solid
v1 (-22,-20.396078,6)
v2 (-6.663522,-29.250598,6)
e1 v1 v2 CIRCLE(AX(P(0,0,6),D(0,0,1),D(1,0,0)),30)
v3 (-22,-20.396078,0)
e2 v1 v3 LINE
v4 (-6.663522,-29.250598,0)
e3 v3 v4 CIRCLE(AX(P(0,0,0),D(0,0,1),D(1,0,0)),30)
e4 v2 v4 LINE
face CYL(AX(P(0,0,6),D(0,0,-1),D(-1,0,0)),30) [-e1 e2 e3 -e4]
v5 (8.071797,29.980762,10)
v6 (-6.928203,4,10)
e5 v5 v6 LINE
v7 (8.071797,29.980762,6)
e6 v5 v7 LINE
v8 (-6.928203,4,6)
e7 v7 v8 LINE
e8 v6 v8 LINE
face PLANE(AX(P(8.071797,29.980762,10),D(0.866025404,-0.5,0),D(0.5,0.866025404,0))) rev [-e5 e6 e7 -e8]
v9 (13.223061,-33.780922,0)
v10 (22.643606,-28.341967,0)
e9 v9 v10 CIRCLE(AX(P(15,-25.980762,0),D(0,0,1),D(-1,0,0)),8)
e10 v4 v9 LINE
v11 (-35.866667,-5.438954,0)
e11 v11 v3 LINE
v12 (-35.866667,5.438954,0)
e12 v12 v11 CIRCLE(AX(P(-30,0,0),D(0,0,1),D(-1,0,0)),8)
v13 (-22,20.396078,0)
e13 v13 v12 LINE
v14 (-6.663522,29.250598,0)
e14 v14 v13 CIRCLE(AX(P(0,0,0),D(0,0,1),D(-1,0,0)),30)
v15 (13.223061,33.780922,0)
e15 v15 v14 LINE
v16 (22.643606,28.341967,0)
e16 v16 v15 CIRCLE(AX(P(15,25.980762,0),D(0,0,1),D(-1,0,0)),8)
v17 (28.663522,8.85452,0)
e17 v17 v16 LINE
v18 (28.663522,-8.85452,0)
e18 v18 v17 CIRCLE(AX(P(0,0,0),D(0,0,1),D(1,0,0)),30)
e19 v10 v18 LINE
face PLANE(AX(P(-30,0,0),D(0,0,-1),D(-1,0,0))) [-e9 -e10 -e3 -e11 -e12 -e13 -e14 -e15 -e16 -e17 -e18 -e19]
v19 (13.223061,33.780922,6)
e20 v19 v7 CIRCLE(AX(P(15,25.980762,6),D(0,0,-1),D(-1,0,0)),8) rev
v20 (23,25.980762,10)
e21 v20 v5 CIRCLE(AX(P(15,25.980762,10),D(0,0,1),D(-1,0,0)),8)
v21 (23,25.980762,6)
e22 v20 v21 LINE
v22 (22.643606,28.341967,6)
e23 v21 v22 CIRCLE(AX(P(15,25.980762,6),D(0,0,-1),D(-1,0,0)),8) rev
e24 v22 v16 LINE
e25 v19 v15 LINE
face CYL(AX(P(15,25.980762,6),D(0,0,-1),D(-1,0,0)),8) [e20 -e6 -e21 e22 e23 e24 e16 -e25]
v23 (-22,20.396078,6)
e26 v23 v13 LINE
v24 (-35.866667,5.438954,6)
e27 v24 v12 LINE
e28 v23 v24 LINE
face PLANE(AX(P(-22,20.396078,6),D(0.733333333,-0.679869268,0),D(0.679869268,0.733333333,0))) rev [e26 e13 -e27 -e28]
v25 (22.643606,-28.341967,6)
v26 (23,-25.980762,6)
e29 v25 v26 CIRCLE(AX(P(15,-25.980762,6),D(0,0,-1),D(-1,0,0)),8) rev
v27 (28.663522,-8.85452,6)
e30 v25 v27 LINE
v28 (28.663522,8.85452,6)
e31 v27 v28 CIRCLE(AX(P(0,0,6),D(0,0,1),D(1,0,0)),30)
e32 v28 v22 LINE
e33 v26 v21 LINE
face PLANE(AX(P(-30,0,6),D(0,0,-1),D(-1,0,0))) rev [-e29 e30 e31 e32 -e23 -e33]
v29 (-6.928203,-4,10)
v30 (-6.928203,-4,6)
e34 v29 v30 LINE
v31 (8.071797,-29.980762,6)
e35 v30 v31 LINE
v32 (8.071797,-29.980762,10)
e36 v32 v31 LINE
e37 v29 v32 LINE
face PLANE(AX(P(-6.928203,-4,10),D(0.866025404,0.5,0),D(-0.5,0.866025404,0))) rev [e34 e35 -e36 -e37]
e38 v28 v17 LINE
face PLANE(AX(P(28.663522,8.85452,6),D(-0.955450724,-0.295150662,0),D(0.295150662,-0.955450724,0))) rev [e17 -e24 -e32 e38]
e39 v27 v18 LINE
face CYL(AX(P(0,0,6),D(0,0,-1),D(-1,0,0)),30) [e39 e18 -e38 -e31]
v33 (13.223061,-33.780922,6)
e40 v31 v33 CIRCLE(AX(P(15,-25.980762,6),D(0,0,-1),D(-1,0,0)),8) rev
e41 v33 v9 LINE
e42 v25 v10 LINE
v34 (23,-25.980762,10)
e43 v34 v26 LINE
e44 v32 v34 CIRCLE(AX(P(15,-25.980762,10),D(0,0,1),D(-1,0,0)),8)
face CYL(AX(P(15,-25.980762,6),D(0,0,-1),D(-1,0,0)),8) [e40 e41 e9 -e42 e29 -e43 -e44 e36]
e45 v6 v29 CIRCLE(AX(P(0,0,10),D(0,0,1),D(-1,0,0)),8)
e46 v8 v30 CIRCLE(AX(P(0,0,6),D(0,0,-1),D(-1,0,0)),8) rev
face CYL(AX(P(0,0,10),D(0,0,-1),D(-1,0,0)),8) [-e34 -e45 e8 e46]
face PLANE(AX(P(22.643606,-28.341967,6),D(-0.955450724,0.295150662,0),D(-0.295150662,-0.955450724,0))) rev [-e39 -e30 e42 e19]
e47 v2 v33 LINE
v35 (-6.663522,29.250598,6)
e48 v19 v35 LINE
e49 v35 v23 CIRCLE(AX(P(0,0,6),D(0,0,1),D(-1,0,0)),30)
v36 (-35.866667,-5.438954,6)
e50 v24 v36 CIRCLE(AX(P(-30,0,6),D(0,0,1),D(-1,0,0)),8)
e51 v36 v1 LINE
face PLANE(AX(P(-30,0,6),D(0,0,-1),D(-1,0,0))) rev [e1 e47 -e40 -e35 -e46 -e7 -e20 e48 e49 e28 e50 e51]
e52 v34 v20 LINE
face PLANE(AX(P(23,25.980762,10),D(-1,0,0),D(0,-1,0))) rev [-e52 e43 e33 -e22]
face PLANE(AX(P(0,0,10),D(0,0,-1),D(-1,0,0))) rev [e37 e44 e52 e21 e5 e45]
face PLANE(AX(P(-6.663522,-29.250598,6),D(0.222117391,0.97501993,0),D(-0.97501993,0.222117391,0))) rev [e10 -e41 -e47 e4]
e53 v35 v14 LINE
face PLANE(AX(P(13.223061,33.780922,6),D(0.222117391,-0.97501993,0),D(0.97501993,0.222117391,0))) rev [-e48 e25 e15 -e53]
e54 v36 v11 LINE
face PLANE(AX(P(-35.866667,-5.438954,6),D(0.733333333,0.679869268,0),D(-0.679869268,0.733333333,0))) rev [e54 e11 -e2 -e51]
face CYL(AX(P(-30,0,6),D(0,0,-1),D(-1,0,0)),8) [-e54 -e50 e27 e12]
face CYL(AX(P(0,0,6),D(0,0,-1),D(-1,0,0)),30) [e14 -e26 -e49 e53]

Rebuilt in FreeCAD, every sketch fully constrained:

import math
import FreeCAD as App
import Part
import Sketcher
Q = App.Units.Quantity

doc = App.newDocument("Part")
body = doc.addObject("PartDesign::Body", "Body")

sketch1 = body.newObject("Sketcher::SketchObject", "Sketch")
sketch1.AttachmentSupport = (doc.getObject("XY_Plane"), [""])
sketch1.MapMode = "FlatFace"
sketch1.addGeometry(Part.LineSegment(App.Vector(-22, 20.396078, 0), App.Vector(-35.866667, 5.438954, 0)), False)
sketch1.addGeometry(Part.ArcOfCircle(Part.Circle(App.Vector(-30, 0, 0), App.Vector(0, 0, 1), 8), math.radians(137.166572), math.radians(222.833428)), False)
sketch1.addGeometry(Part.LineSegment(App.Vector(-35.866667, -5.438954, 0), App.Vector(-22, -20.396078, 0)), False)
sketch1.addGeometry(Part.ArcOfCircle(Part.Circle(App.Vector(0, 0, 0), App.Vector(0, 0, 1), 30), math.radians(-137.166572), math.radians(-102.833428)), False)
sketch1.addGeometry(Part.LineSegment(App.Vector(-6.663522, -29.250598, 0), App.Vector(13.223061, -33.780922, 0)), False)
sketch1.addGeometry(Part.ArcOfCircle(Part.Circle(App.Vector(15, -25.980762, 0), App.Vector(0, 0, 1), 8), math.radians(-102.833428), math.radians(-17.166572)), False)
sketch1.addGeometry(Part.LineSegment(App.Vector(22.643606, -28.341967, 0), App.Vector(28.663522, -8.85452, 0)), False)
sketch1.addGeometry(Part.ArcOfCircle(Part.Circle(App.Vector(0, 0, 0), App.Vector(0, 0, 1), 30), math.radians(-17.166572), math.radians(17.166572)), False)
sketch1.addGeometry(Part.LineSegment(App.Vector(28.663522, 8.85452, 0), App.Vector(22.643606, 28.341967, 0)), False)
sketch1.addGeometry(Part.ArcOfCircle(Part.Circle(App.Vector(15, 25.980762, 0), App.Vector(0, 0, 1), 8), math.radians(17.166572), math.radians(102.833428)), False)
sketch1.addGeometry(Part.LineSegment(App.Vector(13.223061, 33.780922, 0), App.Vector(-6.663522, 29.250598, 0)), False)
sketch1.addGeometry(Part.ArcOfCircle(Part.Circle(App.Vector(0, 0, 0), App.Vector(0, 0, 1), 30), math.radians(102.833428), math.radians(137.166572)), False)
sketch1.addConstraint(Sketcher.Constraint("Tangent", 0, 2, 1, 1))
sketch1.addConstraint(Sketcher.Constraint("Tangent", 1, 2, 2, 1))
sketch1.addConstraint(Sketcher.Constraint("Tangent", 2, 2, 3, 1))
sketch1.addConstraint(Sketcher.Constraint("Tangent", 3, 2, 4, 1))
sketch1.addConstraint(Sketcher.Constraint("Tangent", 4, 2, 5, 1))
sketch1.addConstraint(Sketcher.Constraint("Tangent", 5, 2, 6, 1))
sketch1.addConstraint(Sketcher.Constraint("Tangent", 6, 2, 7, 1))
sketch1.addConstraint(Sketcher.Constraint("Tangent", 7, 2, 8, 1))
sketch1.addConstraint(Sketcher.Constraint("Tangent", 8, 2, 9, 1))
sketch1.addConstraint(Sketcher.Constraint("Tangent", 9, 2, 10, 1))
sketch1.addConstraint(Sketcher.Constraint("Tangent", 10, 2, 11, 1))
sketch1.addConstraint(Sketcher.Constraint("Tangent", 11, 2, 0, 1))
sketch1.addConstraint(Sketcher.Constraint("Coincident", 3, 3, -1, 1))
sketch1.addConstraint(Sketcher.Constraint("Coincident", 7, 3, -1, 1))
sketch1.addConstraint(Sketcher.Constraint("Coincident", 11, 3, -1, 1))
sketch1.addConstraint(Sketcher.Constraint("Equal", 1, 5))
sketch1.addConstraint(Sketcher.Constraint("Equal", 3, 7))
sketch1.addConstraint(Sketcher.Constraint("Equal", 5, 9))
sketch1.addConstraint(Sketcher.Constraint("Equal", 7, 11))
sketch1.addConstraint(Sketcher.Constraint("Symmetric", 5, 3, 9, 3, -1))
sketch1.addConstraint(Sketcher.Constraint("PointOnObject", 1, 3, -1))
sketch1.addConstraint(Sketcher.Constraint("Equal", 2, 4))
sketch1.addConstraint(Sketcher.Constraint("Radius", 1, 8.0))
sketch1.addConstraint(Sketcher.Constraint("Radius", 3, 30.0))
sketch1.addConstraint(Sketcher.Constraint("DistanceX", 1, 3, -1, 1, 30.0))
sketch1.addConstraint(Sketcher.Constraint("DistanceX", -1, 1, 5, 3, 15.0))
pad1 = body.newObject("PartDesign::Pad", "Pad")
pad1.Profile = sketch1
pad1.Length = 6

sketch2 = body.newObject("Sketcher::SketchObject", "Sketch001")
sketch2.AttachmentSupport = (doc.getObject("XY_Plane"), [""])
sketch2.MapMode = "FlatFace"
sketch2.addGeometry(Part.LineSegment(App.Vector(8.071797, 29.980762, 0), App.Vector(-6.928203, 4, 0)), False)
sketch2.addGeometry(Part.ArcOfCircle(Part.Circle(App.Vector(0, 0, 0), App.Vector(0, 0, 1), 8), math.radians(150), math.radians(210)), False)
sketch2.addGeometry(Part.LineSegment(App.Vector(-6.928203, -4, 0), App.Vector(8.071797, -29.980762, 0)), False)
sketch2.addGeometry(Part.ArcOfCircle(Part.Circle(App.Vector(15, -25.980762, 0), App.Vector(0, 0, 1), 8), math.radians(-150), math.radians(0)), False)
sketch2.addGeometry(Part.LineSegment(App.Vector(23, -25.980762, 0), App.Vector(23, 25.980762, 0)), False)
sketch2.addGeometry(Part.ArcOfCircle(Part.Circle(App.Vector(15, 25.980762, 0), App.Vector(0, 0, 1), 8), math.radians(0), math.radians(150)), False)
sketch2.addConstraint(Sketcher.Constraint("Tangent", 0, 2, 1, 1))
sketch2.addConstraint(Sketcher.Constraint("Tangent", 1, 2, 2, 1))
sketch2.addConstraint(Sketcher.Constraint("Tangent", 2, 2, 3, 1))
sketch2.addConstraint(Sketcher.Constraint("Tangent", 3, 2, 4, 1))
sketch2.addConstraint(Sketcher.Constraint("Tangent", 4, 2, 5, 1))
sketch2.addConstraint(Sketcher.Constraint("Tangent", 5, 2, 0, 1))
sketch2.addConstraint(Sketcher.Constraint("Vertical", 4))
sketch2.addConstraint(Sketcher.Constraint("Coincident", 1, 3, -1, 1))
sketch2.addConstraint(Sketcher.Constraint("Equal", 1, 3))
sketch2.addConstraint(Sketcher.Constraint("Equal", 3, 5))
sketch2.addConstraint(Sketcher.Constraint("Vertical", 0, 2, 1, 2))
sketch2.addConstraint(Sketcher.Constraint("Radius", 1, 8.0))
sketch2.addConstraint(Sketcher.Constraint("Angle", 0, Q("-120 deg")))
sketch2.addConstraint(Sketcher.Constraint("Distance", 0, 30.0))
pad2 = body.newObject("PartDesign::Pad", "Pad001")
pad2.Profile = sketch2
pad2.Length = 10

doc.recompute()
